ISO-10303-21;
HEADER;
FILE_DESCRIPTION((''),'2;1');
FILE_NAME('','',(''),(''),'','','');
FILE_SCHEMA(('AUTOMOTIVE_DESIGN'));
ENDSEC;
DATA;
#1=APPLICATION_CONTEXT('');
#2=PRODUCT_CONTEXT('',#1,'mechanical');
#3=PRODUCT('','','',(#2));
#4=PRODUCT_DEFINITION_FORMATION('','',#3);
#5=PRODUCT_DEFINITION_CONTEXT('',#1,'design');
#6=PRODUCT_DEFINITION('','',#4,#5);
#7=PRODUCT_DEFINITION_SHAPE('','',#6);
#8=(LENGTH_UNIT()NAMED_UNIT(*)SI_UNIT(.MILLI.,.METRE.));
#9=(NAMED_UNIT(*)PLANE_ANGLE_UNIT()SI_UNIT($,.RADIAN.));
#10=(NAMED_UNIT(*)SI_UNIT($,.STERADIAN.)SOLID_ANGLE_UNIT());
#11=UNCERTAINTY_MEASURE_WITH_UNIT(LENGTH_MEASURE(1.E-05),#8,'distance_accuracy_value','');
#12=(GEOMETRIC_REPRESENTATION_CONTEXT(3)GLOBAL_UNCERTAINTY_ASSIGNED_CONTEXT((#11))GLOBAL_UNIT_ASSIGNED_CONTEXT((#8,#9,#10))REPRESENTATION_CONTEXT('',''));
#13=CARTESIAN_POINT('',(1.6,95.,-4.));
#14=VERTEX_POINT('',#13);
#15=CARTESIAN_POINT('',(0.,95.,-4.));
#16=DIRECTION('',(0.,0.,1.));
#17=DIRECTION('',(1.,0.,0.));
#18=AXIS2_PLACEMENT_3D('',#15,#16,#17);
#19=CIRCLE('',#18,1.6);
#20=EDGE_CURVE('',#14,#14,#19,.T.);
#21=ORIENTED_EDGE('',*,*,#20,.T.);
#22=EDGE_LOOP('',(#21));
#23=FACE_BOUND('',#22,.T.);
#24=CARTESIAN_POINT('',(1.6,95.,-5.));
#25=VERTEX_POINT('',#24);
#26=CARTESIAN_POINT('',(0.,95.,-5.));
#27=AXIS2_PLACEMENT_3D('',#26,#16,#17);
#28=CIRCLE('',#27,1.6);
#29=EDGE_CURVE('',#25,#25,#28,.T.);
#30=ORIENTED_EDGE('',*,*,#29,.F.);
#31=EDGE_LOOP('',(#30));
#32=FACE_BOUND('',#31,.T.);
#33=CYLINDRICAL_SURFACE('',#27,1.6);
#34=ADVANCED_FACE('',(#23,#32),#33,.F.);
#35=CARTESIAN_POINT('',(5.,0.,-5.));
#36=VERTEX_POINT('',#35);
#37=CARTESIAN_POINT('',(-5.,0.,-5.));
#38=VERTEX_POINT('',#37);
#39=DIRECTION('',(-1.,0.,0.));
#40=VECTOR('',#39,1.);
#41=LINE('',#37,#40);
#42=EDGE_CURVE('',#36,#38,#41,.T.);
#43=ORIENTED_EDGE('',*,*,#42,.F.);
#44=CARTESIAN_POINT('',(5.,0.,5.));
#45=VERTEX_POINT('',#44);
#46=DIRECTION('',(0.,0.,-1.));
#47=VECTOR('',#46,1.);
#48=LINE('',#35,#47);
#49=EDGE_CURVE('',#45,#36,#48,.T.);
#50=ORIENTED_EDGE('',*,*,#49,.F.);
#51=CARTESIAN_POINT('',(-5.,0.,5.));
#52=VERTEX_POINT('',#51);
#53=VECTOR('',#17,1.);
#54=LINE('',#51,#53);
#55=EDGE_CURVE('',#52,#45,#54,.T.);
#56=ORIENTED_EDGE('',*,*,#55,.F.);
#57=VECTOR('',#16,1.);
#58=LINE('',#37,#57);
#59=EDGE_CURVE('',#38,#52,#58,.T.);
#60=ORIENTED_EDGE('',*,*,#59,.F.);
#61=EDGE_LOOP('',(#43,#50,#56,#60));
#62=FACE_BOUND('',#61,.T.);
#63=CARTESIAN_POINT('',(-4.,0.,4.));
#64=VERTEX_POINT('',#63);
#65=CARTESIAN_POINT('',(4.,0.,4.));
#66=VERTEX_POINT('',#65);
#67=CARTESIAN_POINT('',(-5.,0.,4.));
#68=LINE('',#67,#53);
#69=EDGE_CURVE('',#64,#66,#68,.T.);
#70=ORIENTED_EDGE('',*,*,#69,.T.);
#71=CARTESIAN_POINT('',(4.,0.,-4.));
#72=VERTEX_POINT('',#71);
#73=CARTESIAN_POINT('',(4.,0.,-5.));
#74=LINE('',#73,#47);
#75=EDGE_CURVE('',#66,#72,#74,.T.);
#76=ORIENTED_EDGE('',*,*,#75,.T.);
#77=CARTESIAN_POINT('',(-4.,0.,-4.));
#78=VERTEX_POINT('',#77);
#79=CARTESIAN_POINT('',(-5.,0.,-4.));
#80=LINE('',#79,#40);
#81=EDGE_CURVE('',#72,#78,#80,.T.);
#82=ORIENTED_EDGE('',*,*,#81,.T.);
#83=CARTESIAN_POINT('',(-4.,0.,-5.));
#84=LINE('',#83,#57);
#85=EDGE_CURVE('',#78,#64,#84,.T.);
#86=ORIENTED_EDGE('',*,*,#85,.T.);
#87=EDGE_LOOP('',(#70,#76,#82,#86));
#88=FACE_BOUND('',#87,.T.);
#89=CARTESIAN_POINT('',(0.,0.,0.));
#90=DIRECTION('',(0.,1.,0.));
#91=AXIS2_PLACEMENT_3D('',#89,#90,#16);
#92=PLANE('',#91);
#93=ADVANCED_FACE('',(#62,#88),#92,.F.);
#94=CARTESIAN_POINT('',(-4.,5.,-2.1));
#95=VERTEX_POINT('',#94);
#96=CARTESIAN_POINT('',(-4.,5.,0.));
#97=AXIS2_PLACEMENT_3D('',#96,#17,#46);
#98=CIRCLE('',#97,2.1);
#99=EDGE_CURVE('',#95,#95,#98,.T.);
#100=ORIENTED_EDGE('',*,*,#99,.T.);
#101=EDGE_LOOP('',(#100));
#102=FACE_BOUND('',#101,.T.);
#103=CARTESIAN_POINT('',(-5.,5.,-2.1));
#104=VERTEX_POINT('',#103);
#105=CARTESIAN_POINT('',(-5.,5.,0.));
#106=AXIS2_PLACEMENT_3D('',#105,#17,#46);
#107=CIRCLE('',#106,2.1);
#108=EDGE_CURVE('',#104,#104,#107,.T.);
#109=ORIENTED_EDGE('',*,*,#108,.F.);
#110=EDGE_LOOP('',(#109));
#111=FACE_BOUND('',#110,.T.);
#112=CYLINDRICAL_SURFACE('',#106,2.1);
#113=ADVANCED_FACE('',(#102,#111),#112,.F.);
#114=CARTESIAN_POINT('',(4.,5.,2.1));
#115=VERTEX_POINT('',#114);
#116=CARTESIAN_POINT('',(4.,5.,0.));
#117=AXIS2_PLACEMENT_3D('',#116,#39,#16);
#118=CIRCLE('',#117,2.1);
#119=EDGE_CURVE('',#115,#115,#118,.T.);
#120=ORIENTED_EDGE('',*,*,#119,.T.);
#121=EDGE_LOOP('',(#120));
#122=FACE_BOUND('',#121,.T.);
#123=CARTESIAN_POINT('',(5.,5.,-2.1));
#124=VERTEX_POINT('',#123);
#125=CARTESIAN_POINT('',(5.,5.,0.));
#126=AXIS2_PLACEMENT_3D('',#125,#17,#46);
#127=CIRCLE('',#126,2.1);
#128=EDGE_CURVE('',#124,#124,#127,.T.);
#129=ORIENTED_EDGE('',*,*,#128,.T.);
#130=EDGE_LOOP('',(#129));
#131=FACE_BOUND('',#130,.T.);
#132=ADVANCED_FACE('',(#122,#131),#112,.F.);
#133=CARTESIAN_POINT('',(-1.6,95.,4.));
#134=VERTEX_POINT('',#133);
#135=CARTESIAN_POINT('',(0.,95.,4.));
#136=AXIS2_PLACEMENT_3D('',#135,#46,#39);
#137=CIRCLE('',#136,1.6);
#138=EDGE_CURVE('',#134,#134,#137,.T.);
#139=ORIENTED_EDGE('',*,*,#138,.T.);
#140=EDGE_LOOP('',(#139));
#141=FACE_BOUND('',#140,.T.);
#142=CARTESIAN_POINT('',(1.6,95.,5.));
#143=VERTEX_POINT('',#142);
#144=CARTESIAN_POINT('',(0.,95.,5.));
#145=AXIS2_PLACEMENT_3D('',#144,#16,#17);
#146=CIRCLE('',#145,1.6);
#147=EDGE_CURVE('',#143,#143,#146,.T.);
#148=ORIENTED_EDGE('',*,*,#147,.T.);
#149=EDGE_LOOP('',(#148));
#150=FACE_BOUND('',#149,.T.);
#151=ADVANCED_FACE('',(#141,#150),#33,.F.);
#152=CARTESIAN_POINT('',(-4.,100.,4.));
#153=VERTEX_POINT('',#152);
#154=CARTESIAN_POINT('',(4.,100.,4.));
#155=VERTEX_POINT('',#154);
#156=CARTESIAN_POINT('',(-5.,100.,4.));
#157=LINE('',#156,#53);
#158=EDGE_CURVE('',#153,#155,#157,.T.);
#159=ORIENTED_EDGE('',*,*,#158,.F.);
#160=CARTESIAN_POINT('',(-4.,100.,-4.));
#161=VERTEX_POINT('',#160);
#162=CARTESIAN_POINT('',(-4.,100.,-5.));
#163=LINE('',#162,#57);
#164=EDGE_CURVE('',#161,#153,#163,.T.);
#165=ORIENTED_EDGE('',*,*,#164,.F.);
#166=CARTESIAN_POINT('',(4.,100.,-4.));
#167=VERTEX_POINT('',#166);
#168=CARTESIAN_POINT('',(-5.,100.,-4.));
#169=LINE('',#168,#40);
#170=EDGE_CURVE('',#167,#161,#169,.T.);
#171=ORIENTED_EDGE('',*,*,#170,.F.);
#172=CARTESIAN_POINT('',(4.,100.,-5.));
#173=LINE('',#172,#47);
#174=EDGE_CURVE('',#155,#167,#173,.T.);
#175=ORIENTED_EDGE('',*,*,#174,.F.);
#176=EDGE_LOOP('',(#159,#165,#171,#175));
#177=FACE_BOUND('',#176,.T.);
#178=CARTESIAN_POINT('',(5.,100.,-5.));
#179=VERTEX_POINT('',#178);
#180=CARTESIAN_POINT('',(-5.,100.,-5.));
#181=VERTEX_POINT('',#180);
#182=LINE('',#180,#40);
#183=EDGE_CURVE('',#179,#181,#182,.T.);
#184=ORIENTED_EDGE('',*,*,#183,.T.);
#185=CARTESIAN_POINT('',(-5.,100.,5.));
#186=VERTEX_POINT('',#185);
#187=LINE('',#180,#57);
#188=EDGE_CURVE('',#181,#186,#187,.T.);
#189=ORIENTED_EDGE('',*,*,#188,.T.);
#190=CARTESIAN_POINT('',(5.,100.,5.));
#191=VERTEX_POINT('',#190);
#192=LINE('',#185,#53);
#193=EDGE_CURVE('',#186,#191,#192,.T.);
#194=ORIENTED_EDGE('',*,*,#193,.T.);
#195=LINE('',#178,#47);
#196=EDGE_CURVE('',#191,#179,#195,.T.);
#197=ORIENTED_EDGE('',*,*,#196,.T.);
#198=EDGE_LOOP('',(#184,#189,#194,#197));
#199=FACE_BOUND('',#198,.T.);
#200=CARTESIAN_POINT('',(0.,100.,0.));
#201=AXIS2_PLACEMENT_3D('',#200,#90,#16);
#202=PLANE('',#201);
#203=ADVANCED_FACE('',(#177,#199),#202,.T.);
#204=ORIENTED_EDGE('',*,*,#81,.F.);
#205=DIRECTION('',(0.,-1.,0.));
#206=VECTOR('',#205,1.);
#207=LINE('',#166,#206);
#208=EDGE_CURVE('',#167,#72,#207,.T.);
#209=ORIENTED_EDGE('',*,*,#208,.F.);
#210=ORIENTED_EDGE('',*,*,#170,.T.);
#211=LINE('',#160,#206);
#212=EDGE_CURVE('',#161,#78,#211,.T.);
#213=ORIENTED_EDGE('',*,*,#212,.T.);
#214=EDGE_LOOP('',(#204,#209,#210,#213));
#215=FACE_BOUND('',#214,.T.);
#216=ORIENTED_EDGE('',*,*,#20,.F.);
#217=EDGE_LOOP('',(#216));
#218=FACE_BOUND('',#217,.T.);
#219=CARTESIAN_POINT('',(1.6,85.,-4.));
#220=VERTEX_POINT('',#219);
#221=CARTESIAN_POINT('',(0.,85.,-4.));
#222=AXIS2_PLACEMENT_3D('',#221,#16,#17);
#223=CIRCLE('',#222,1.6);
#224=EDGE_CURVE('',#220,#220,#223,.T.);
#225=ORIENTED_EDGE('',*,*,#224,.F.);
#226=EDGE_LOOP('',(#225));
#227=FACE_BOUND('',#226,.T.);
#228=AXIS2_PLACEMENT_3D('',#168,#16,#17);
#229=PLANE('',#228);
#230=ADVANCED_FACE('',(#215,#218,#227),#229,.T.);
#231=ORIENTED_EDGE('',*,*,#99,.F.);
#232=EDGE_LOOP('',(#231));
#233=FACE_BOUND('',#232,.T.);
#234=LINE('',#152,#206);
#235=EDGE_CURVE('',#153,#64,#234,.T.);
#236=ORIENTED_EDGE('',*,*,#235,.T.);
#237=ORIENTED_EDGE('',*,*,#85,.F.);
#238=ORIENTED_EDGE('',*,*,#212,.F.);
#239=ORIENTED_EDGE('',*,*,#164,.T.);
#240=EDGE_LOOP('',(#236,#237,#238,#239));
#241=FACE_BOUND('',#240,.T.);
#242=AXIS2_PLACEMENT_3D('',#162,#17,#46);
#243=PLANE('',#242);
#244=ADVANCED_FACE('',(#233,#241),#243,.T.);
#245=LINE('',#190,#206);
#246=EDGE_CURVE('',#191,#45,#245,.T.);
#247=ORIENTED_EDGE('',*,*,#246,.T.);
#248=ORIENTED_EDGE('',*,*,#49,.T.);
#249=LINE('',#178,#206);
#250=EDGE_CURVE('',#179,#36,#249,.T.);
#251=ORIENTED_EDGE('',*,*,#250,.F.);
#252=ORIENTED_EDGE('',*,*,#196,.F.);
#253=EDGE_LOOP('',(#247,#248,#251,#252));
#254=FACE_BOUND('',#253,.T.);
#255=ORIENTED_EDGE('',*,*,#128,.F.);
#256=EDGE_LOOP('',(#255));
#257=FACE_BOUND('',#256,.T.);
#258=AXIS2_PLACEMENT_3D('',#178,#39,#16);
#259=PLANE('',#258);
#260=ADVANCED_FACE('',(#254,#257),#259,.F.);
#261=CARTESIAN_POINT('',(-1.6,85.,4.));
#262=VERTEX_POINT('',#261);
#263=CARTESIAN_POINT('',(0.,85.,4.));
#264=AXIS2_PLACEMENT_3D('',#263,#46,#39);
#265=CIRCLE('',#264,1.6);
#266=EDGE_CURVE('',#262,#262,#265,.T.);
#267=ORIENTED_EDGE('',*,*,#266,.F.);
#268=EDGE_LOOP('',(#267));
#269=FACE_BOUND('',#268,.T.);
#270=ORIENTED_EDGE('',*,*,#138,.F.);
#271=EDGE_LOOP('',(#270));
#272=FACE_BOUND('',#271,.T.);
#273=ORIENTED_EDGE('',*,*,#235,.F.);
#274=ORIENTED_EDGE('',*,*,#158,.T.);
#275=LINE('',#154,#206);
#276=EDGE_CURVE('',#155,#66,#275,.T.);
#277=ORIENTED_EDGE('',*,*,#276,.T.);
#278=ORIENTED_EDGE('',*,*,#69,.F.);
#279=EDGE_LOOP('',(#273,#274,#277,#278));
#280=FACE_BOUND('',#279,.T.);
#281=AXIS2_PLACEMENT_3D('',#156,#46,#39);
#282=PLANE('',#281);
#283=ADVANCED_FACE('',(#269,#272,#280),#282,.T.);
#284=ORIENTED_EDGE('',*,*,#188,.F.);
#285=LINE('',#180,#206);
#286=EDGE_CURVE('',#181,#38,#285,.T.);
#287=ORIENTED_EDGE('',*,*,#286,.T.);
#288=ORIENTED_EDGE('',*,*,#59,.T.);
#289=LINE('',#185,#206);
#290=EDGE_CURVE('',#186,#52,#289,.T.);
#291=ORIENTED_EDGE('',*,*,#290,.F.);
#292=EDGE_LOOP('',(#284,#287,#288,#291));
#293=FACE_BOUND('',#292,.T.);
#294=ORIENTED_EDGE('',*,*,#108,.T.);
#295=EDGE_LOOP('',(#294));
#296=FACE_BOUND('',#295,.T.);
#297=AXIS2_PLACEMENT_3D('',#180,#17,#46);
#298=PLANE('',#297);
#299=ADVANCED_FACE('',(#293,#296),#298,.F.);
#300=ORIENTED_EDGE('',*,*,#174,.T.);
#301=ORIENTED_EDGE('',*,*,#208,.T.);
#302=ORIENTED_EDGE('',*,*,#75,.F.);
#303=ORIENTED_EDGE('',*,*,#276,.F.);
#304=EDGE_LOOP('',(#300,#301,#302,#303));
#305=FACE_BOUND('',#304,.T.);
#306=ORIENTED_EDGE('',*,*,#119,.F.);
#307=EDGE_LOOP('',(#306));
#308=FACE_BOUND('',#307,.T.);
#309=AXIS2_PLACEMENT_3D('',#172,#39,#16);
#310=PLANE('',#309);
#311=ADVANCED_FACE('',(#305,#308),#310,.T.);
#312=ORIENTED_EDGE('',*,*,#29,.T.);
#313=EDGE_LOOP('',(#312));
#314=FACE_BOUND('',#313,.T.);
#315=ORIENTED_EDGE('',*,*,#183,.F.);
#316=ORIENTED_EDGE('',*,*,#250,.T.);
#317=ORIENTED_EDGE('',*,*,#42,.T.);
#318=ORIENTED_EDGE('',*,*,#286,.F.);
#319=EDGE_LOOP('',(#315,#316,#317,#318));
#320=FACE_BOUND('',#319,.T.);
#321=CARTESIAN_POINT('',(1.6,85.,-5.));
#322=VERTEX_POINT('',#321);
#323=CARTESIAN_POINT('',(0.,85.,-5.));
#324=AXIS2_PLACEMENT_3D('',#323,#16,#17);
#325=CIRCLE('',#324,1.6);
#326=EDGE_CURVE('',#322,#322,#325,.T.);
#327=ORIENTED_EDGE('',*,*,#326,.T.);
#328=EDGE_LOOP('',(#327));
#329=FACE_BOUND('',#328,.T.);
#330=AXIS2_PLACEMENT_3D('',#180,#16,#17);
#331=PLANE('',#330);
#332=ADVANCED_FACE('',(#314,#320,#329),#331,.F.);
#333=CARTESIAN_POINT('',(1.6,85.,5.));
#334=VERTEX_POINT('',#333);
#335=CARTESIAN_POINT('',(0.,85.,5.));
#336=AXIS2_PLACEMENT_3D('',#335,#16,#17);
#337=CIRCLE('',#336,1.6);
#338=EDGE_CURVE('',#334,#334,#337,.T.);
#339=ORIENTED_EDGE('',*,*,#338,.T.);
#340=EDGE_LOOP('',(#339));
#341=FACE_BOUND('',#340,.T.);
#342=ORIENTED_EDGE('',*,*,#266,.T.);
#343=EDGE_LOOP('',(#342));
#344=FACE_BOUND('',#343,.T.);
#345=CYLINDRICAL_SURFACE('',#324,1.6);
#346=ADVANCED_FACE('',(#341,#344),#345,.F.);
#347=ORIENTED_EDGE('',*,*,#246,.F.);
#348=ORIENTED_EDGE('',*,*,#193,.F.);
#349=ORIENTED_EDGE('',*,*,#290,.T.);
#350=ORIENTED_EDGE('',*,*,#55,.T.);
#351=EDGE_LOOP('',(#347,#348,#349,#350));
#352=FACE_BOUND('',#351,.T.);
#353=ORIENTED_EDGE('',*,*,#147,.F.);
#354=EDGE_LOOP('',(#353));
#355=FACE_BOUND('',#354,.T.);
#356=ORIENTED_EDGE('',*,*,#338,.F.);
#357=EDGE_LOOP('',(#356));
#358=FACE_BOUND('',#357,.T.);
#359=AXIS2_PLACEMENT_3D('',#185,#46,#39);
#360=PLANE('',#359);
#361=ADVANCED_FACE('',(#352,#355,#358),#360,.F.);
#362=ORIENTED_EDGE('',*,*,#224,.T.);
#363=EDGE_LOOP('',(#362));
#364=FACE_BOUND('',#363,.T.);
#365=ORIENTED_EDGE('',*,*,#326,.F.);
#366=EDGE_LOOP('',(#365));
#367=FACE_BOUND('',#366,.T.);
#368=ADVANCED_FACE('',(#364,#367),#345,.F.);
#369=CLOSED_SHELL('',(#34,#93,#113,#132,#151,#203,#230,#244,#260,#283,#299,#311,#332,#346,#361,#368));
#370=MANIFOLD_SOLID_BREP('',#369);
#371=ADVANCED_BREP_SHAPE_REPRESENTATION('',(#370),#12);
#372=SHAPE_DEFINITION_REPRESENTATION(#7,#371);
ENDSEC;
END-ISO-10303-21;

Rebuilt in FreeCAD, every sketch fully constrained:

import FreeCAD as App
import Part
import Sketcher
from FreeCAD import Vector
Q = App.Units.Quantity

doc = App.newDocument("Part")
body = doc.addObject("PartDesign::Body", "Body")

sketch1 = body.newObject("Sketcher::SketchObject", "Sketch")
sketch1.AttachmentSupport = (doc.getObject("XZ_Plane"), [""])
sketch1.MapMode = "FlatFace"
sketch1.addGeometry(Part.LineSegment(Vector(-5, -5, 0), Vector(-5, 5, 0)), False)
sketch1.addGeometry(Part.LineSegment(Vector(-5, 5, 0), Vector(5, 5, 0)), False)
sketch1.addGeometry(Part.LineSegment(Vector(5, 5, 0), Vector(5, -5, 0)), False)
sketch1.addGeometry(Part.LineSegment(Vector(5, -5, 0), Vector(-5, -5, 0)), False)
sketch1.addGeometry(Part.LineSegment(Vector(4, 4, 0), Vector(-4, 4, 0)), False)
sketch1.addGeometry(Part.LineSegment(Vector(-4, 4, 0), Vector(-4, -4, 0)), False)
sketch1.addGeometry(Part.LineSegment(Vector(-4, -4, 0), Vector(4, -4, 0)), False)
sketch1.addGeometry(Part.LineSegment(Vector(4, -4, 0), Vector(4, 4, 0)), False)
sketch1.addConstraint(Sketcher.Constraint("Coincident", 0, 2, 1, 1))
sketch1.addConstraint(Sketcher.Constraint("Coincident", 1, 2, 2, 1))
sketch1.addConstraint(Sketcher.Constraint("Coincident", 2, 2, 3, 1))
sketch1.addConstraint(Sketcher.Constraint("Coincident", 3, 2, 0, 1))
sketch1.addConstraint(Sketcher.Constraint("Coincident", 4, 2, 5, 1))
sketch1.addConstraint(Sketcher.Constraint("Coincident", 5, 2, 6, 1))
sketch1.addConstraint(Sketcher.Constraint("Coincident", 6, 2, 7, 1))
sketch1.addConstraint(Sketcher.Constraint("Coincident", 7, 2, 4, 1))
sketch1.addConstraint(Sketcher.Constraint("Vertical", 0))
sketch1.addConstraint(Sketcher.Constraint("Horizontal", 1))
sketch1.addConstraint(Sketcher.Constraint("Vertical", 2))
sketch1.addConstraint(Sketcher.Constraint("Horizontal", 3))
sketch1.addConstraint(Sketcher.Constraint("Horizontal", 4))
sketch1.addConstraint(Sketcher.Constraint("Vertical", 5))
sketch1.addConstraint(Sketcher.Constraint("Horizontal", 6))
sketch1.addConstraint(Sketcher.Constraint("Vertical", 7))
sketch1.addConstraint(Sketcher.Constraint("Symmetric", 0, 2, 2, 2, -1, 1))
sketch1.addConstraint(Sketcher.Constraint("Symmetric", 4, 2, 6, 2, -1, 1))
sketch1.addConstraint(Sketcher.Constraint("Equal", 3, 0))
sketch1.addConstraint(Sketcher.Constraint("Equal", 6, 5))
sketch1.addConstraint(Sketcher.Constraint("DistanceX", 1, 1, 1, 2, Q("10 mm")))
sketch1.addConstraint(Sketcher.Constraint("DistanceX", 4, 2, 4, 1, Q("8 mm")))
pad1 = body.newObject("PartDesign::Pad", "Pad")
pad1.Profile = sketch1
pad1.Length = 100
pad1.Reversed = True

sketch2 = body.newObject("Sketcher::SketchObject", "Sketch001")
sketch2.AttachmentSupport = (doc.getObject("YZ_Plane"), [""])
sketch2.MapMode = "FlatFace"
sketch2.AttachmentOffset = App.Placement(Vector(0, 0, 5), App.Rotation())
sketch2.addGeometry(Part.Circle(Vector(5, 0, 0), Vector(0, 0, 1), 2.1), False)
sketch2.addConstraint(Sketcher.Constraint("PointOnObject", 0, 3, -1))
sketch2.addConstraint(Sketcher.Constraint("Diameter", 0, Q("4.2 mm")))
sketch2.addConstraint(Sketcher.Constraint("DistanceX", -1, 1, 0, 3, Q("5 mm")))
pocket1 = body.newObject("PartDesign::Pocket", "Pocket")
pocket1.Profile = sketch2
pocket1.Type = "ThroughAll"

sketch3 = body.newObject("Sketcher::SketchObject", "Sketch002")
sketch3.AttachmentSupport = (doc.getObject("XY_Plane"), [""])
sketch3.MapMode = "FlatFace"
sketch3.AttachmentOffset = App.Placement(Vector(0, 0, 5), App.Rotation())
sketch3.addGeometry(Part.Circle(Vector(0, 85, 0), Vector(0, 0, 1), 1.6), False)
sketch3.addGeometry(Part.Circle(Vector(0, 95, 0), Vector(0, 0, 1), 1.6), False)
sketch3.addConstraint(Sketcher.Constraint("Equal", 0, 1))
sketch3.addConstraint(Sketcher.Constraint("PointOnObject", 0, 3, -2))
sketch3.addConstraint(Sketcher.Constraint("PointOnObject", 1, 3, -2))
sketch3.addConstraint(Sketcher.Constraint("Diameter", 0, Q("3.2 mm")))
sketch3.addConstraint(Sketcher.Constraint("DistanceY", -1, 1, 0, 3, Q("85 mm")))
sketch3.addConstraint(Sketcher.Constraint("DistanceY", -1, 1, 1, 3, Q("95 mm")))
pocket2 = body.newObject("PartDesign::Pocket", "Pocket001")
pocket2.Profile = sketch3
pocket2.Type = "ThroughAll"

doc.recompute()
